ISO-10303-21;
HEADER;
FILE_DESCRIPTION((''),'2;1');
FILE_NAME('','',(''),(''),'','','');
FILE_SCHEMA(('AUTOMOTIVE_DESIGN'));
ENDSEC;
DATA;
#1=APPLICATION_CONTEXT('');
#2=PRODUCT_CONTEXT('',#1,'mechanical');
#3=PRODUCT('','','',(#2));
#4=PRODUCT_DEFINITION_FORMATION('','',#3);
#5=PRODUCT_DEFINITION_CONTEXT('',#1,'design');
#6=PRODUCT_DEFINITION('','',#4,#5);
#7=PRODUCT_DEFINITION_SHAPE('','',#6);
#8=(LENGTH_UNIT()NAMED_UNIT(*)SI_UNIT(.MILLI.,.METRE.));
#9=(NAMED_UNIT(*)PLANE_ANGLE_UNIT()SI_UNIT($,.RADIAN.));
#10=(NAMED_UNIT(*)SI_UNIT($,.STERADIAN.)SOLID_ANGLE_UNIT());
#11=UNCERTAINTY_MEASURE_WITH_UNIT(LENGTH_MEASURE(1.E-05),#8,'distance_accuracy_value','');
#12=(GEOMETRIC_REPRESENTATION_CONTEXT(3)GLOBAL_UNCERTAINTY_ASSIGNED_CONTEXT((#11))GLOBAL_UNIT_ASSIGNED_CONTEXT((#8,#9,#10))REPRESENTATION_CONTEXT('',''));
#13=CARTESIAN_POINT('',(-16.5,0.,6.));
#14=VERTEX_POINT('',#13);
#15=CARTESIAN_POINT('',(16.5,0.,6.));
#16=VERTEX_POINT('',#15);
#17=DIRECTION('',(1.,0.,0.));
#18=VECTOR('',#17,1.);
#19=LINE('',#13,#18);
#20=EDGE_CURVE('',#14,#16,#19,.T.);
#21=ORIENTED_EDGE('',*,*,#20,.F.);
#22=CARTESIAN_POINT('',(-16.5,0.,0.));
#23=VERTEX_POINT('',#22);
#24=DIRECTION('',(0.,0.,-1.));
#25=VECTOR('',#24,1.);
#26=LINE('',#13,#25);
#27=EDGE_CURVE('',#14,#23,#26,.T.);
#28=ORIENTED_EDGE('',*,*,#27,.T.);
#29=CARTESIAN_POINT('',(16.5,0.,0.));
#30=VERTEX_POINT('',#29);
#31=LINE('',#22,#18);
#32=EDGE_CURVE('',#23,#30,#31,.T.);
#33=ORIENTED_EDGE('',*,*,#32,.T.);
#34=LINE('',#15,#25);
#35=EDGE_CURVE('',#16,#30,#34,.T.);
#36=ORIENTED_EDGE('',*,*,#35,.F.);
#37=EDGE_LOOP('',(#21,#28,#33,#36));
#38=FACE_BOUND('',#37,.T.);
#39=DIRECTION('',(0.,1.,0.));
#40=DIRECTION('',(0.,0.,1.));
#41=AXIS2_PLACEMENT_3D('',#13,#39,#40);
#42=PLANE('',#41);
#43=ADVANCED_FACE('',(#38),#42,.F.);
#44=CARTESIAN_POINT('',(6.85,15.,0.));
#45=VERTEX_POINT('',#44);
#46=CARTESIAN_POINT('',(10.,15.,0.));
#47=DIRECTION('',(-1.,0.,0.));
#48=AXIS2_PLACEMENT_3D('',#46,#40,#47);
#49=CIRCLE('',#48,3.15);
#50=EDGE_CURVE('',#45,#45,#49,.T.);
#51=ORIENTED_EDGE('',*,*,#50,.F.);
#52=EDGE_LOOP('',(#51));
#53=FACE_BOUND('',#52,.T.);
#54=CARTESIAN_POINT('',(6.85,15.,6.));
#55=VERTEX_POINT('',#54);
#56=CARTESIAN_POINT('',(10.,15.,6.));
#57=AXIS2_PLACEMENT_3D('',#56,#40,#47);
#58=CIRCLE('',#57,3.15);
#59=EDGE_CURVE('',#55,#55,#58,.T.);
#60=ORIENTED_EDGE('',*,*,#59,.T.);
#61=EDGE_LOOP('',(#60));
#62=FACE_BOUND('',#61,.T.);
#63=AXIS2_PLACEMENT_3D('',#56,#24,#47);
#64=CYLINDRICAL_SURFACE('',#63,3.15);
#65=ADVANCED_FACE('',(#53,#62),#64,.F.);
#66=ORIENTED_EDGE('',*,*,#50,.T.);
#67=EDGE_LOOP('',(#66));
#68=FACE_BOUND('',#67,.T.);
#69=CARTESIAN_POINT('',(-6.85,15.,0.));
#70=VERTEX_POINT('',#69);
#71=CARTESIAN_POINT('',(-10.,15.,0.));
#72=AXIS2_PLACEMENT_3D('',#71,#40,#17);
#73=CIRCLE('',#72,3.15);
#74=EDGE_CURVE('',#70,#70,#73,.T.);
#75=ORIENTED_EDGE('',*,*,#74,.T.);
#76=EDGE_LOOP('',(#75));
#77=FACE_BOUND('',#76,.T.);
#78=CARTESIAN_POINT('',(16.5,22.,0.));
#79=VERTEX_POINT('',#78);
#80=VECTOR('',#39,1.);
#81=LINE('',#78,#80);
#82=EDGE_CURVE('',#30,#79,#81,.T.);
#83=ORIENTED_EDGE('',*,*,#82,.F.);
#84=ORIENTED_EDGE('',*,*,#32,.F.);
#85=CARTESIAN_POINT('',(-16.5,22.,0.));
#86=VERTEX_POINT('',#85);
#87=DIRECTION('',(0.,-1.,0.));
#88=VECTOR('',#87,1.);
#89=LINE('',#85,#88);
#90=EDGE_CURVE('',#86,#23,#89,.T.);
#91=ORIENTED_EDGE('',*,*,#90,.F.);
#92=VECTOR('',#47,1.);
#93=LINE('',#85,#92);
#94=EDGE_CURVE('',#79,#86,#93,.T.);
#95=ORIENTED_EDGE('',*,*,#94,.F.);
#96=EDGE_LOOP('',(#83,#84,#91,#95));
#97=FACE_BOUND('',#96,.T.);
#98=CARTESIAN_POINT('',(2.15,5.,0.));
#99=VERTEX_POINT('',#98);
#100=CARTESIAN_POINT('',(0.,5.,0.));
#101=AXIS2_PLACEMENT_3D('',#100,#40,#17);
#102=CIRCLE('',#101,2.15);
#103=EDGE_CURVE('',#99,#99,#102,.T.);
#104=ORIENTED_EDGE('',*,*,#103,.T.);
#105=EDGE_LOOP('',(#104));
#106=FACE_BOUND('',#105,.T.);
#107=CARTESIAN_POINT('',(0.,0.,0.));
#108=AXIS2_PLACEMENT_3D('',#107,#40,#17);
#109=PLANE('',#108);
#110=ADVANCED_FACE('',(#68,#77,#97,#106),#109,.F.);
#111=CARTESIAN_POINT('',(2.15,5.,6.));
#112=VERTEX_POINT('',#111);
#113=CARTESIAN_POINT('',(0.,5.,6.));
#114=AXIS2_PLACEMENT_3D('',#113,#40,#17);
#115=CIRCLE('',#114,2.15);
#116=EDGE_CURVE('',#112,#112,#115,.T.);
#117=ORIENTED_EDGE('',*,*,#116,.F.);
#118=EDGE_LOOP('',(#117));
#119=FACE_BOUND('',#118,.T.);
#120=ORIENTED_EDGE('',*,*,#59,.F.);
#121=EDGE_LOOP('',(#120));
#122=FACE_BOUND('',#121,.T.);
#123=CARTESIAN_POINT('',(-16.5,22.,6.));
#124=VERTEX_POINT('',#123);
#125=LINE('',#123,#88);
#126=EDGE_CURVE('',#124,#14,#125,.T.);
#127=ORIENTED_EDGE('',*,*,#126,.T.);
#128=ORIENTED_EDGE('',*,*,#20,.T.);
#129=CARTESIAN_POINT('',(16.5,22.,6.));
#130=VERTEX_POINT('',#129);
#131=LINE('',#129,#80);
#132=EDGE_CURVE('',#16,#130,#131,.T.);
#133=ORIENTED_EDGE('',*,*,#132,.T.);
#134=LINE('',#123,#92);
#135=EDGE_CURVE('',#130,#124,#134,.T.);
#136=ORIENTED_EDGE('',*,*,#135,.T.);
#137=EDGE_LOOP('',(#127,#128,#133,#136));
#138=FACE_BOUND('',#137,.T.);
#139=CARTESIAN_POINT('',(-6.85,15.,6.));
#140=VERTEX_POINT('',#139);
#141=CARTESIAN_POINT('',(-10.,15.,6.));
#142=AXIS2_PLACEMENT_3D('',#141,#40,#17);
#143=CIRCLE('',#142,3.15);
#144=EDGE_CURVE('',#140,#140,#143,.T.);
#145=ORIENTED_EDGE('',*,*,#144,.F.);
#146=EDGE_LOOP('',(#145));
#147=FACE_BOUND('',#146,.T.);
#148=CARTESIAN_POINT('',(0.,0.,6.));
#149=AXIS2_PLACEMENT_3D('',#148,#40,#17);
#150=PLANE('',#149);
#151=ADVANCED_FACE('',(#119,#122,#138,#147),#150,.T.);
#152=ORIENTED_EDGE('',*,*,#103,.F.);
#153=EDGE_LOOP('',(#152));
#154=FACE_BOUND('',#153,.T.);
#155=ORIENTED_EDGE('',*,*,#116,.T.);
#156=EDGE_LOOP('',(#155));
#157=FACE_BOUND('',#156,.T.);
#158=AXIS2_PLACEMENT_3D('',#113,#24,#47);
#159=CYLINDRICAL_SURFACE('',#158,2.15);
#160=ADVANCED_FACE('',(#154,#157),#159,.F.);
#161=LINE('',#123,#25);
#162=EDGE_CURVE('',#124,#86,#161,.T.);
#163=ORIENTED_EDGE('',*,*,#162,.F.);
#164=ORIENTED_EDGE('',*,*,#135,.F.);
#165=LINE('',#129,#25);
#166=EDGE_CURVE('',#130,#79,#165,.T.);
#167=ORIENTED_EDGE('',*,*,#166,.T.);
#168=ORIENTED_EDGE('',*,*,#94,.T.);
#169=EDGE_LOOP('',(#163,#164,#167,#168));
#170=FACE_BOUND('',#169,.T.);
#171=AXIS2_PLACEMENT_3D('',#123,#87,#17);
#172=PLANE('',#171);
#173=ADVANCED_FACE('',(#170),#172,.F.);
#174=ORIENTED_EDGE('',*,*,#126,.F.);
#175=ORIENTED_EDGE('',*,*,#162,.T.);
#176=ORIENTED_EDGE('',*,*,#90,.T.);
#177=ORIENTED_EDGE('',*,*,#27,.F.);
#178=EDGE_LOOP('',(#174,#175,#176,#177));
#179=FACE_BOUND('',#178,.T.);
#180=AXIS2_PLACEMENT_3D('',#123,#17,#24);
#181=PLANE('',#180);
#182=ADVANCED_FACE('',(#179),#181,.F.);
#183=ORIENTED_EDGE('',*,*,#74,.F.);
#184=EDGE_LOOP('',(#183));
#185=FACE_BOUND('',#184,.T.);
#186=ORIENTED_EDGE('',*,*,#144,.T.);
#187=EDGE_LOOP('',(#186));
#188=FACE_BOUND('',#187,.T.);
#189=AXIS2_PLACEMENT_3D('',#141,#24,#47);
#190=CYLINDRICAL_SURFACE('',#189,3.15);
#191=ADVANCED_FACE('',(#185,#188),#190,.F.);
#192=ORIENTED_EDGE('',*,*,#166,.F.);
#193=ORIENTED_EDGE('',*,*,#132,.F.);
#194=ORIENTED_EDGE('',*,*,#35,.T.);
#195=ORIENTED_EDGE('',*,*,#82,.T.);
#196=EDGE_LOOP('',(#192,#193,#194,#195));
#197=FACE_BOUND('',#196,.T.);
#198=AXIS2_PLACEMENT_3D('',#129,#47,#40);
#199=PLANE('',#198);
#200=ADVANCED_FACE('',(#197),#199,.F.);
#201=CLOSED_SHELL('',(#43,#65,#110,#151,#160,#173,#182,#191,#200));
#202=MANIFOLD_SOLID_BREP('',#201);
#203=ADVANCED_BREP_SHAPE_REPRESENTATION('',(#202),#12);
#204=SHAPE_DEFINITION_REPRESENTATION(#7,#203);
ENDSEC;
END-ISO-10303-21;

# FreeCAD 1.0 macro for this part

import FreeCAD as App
import Part
import Sketcher
Q = App.Units.Quantity


def add_polygon(sketch, points):
    """Adds a closed chain of lines whose ends are joined by coincident constraints."""
    first, n = sketch.GeometryCount, len(points)
    for a, b in zip(points, points[1:] + points[:1]):
        sketch.addGeometry(Part.LineSegment(App.Vector(*a, 0), App.Vector(*b, 0)), False)
    for i in range(n):
        sketch.addConstraint(Sketcher.Constraint("Coincident", first + i, 2, first + (i + 1) % n, 1))

doc = App.newDocument("Part")
params = doc.addObject("Spreadsheet::Sheet", "Params")
for row, (alias, value) in enumerate([
    ("sketch1_width", "33 mm"),
    ("sketch1_height", "22 mm"),
    ("pad1_length", "6 mm"),
    ("sketch2_diameter", "6.3 mm"),
    ("sketch2_diameter2", "4.3 mm"),
    ("pocket1_length", "6 mm"),
], start=1):
    params.set(f"A{row}", alias)
    params.set(f"B{row}", "=" + value)
    params.setAlias(f"B{row}", alias)

body = doc.addObject("PartDesign::Body", "Body")

# Sketch on XY plane
sketch1 = body.newObject("Sketcher::SketchObject", "Sketch")
sketch1.AttachmentSupport = (doc.getObject("XY_Plane"), [""])
sketch1.MapMode = "FlatFace"
add_polygon(sketch1, [(-16.5, 22), (-16.5, 0), (16.5, 0), (16.5, 22)])  # lines 0-3
sketch1.addConstraint(Sketcher.Constraint("Vertical", 0))
sketch1.addConstraint(Sketcher.Constraint("Horizontal", 1))
sketch1.addConstraint(Sketcher.Constraint("Vertical", 2))
sketch1.addConstraint(Sketcher.Constraint("Horizontal", 3))
sketch1.addConstraint(Sketcher.Constraint("Symmetric", 0, 2, 1, 2, -1, 1))
sketch1.addConstraint(Sketcher.Constraint("DistanceX", 1, 1, 1, 2, Q("33 mm")))
sketch1.addConstraint(Sketcher.Constraint("DistanceY", 0, 2, 0, 1, Q("22 mm")))
sketch1.setExpression("Constraints[9]", "Params.sketch1_width")
sketch1.setExpression("Constraints[10]", "Params.sketch1_height")
pad1 = body.newObject("PartDesign::Pad", "Pad")
pad1.Profile = sketch1
pad1.setExpression("Length", "Params.pad1_length")

# Sketch on XY plane
sketch2 = body.newObject("Sketcher::SketchObject", "Sketch001")
sketch2.AttachmentSupport = (doc.getObject("XY_Plane"), [""])
sketch2.MapMode = "FlatFace"
sketch2.addGeometry(Part.Circle(App.Vector(-10, 15, 0), App.Vector(0, 0, 1), 3.15), False)
sketch2.addGeometry(Part.Circle(App.Vector(0, 5, 0), App.Vector(0, 0, 1), 2.15), False)
sketch2.addGeometry(Part.Circle(App.Vector(10, 15, 0), App.Vector(0, 0, 1), 3.15), False)
sketch2.addConstraint(Sketcher.Constraint("Equal", 0, 2))
sketch2.addConstraint(Sketcher.Constraint("Symmetric", 0, 3, 2, 3, -2))
sketch2.addConstraint(Sketcher.Constraint("PointOnObject", 1, 3, -2))
sketch2.addConstraint(Sketcher.Constraint("Diameter", 0, Q("6.3 mm")))
sketch2.addConstraint(Sketcher.Constraint("Diameter", 1, Q("4.3 mm")))
sketch2.addConstraint(Sketcher.Constraint("DistanceX", 0, 3, -1, 1, Q("10 mm")))
sketch2.addConstraint(Sketcher.Constraint("DistanceY", -1, 1, 0, 3, Q("15 mm")))
sketch2.addConstraint(Sketcher.Constraint("DistanceY", -1, 1, 1, 3, Q("5 mm")))
sketch2.setExpression("Constraints[3]", "Params.sketch2_diameter")
sketch2.setExpression("Constraints[4]", "Params.sketch2_diameter2")
pocket1 = body.newObject("PartDesign::Pocket", "Pocket")
pocket1.Profile = sketch2
pocket1.setExpression("Length", "Params.pocket1_length")
pocket1.Reversed = True

doc.recompute()
